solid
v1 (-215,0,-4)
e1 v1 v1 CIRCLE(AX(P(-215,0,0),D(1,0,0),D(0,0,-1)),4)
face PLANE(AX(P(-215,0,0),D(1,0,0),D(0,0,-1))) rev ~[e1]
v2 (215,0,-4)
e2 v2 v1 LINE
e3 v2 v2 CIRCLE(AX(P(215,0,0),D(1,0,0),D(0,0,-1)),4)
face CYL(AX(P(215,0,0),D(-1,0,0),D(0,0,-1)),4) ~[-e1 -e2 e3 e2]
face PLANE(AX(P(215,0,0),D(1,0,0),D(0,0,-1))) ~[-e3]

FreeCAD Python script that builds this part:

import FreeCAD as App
import Part
import Sketcher
Q = App.Units.Quantity

doc = App.newDocument("Part")
body = doc.addObject("PartDesign::Body", "Body")

# Sketch on XZ plane
sketch1 = body.newObject("Sketcher::SketchObject", "Sketch")
sketch1.AttachmentSupport = (doc.getObject("XZ_Plane"), [""])
sketch1.MapMode = "FlatFace"
sketch1.addGeometry(Part.LineSegment(App.Vector(-215, -4, 0), App.Vector(-215, 0, 0)), False)
sketch1.addGeometry(Part.LineSegment(App.Vector(-215, 0, 0), App.Vector(215, 0, 0)), False)
sketch1.addGeometry(Part.LineSegment(App.Vector(215, 0, 0), App.Vector(215, -4, 0)), False)
sketch1.addGeometry(Part.LineSegment(App.Vector(215, -4, 0), App.Vector(-215, -4, 0)), False)
sketch1.addConstraint(Sketcher.Constraint("Coincident", 0, 2, 1, 1))
sketch1.addConstraint(Sketcher.Constraint("Coincident", 1, 2, 2, 1))
sketch1.addConstraint(Sketcher.Constraint("Coincident", 2, 2, 3, 1))
sketch1.addConstraint(Sketcher.Constraint("Coincident", 3, 2, 0, 1))
sketch1.addConstraint(Sketcher.Constraint("Vertical", 0))
sketch1.addConstraint(Sketcher.Constraint("Horizontal", 1))
sketch1.addConstraint(Sketcher.Constraint("Vertical", 2))
sketch1.addConstraint(Sketcher.Constraint("Horizontal", 3))
sketch1.addConstraint(Sketcher.Constraint("Symmetric", 0, 2, 1, 2, -1, 1))
sketch1.addConstraint(Sketcher.Constraint("DistanceX", 1, 1, 1, 2, Q("430 mm")))
sketch1.addConstraint(Sketcher.Constraint("DistanceY", 0, 1, 0, 2, Q("4 mm")))
revolution = body.newObject("PartDesign::Revolution", "Revolution")
revolution.Profile = sketch1
revolution.ReferenceAxis = (sketch1, ["H_Axis"])
revolution.Angle = 360

doc.recompute()
